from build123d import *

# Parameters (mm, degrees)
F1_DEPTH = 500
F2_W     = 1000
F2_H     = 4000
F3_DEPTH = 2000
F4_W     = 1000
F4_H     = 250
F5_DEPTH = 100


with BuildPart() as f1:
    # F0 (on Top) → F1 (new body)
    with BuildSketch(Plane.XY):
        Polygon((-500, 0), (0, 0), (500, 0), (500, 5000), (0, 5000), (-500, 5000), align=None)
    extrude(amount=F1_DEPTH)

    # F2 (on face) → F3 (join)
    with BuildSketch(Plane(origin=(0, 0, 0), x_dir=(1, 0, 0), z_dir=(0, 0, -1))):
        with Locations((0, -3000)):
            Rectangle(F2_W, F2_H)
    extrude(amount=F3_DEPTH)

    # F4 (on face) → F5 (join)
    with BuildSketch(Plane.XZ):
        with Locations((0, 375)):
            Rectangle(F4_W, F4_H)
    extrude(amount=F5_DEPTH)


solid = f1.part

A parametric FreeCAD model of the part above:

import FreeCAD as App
import Part
import Sketcher
Q = App.Units.Quantity


def add_polygon(sketch, points):
    """Adds a closed chain of lines whose ends are joined by coincident constraints."""
    first, n = sketch.GeometryCount, len(points)
    for a, b in zip(points, points[1:] + points[:1]):
        sketch.addGeometry(Part.LineSegment(App.Vector(*a, 0), App.Vector(*b, 0)), False)
    for i in range(n):
        sketch.addConstraint(Sketcher.Constraint("Coincident", first + i, 2, first + (i + 1) % n, 1))

doc = App.newDocument("Part")
params = doc.addObject("Spreadsheet::Sheet", "Params")
for row, (alias, value) in enumerate([
    ("sketch1_width", "1000 mm"),
    ("sketch1_height", "5000 mm"),
    ("pad1_length", "500 mm"),
    ("sketch2_width", "1000 mm"),
    ("sketch2_height", "4000 mm"),
    ("pad2_length", "2000 mm"),
    ("sketch3_width", "1000 mm"),
    ("sketch3_height", "250 mm"),
    ("pad3_length", "100 mm"),
], start=1):
    params.set(f"A{row}", alias)
    params.set(f"B{row}", "=" + value)
    params.setAlias(f"B{row}", alias)

body = doc.addObject("PartDesign::Body", "Body")

# Sketch on XY plane
sketch1 = body.newObject("Sketcher::SketchObject", "Sketch")
sketch1.AttachmentSupport = (doc.getObject("XY_Plane"), [""])
sketch1.MapMode = "FlatFace"
add_polygon(sketch1, [(-500, 0), (500, 0), (500, 5000), (-500, 5000)])  # lines 0-3
sketch1.addConstraint(Sketcher.Constraint("Horizontal", 0))
sketch1.addConstraint(Sketcher.Constraint("Vertical", 1))
sketch1.addConstraint(Sketcher.Constraint("Horizontal", 2))
sketch1.addConstraint(Sketcher.Constraint("Vertical", 3))
sketch1.addConstraint(Sketcher.Constraint("Symmetric", 0, 2, 3, 2, -1, 1))
sketch1.addConstraint(Sketcher.Constraint("DistanceX", 0, 1, 0, 2, Q("1000 mm")))
sketch1.addConstraint(Sketcher.Constraint("DistanceY", 1, 1, 1, 2, Q("5000 mm")))
sketch1.setExpression("Constraints[9]", "Params.sketch1_width")
sketch1.setExpression("Constraints[10]", "Params.sketch1_height")
pad1 = body.newObject("PartDesign::Pad", "Pad")
pad1.Profile = sketch1
pad1.setExpression("Length", "Params.pad1_length")

# Sketch on XY plane
sketch2 = body.newObject("Sketcher::SketchObject", "Sketch001")
sketch2.AttachmentSupport = (doc.getObject("XY_Plane"), [""])
sketch2.MapMode = "FlatFace"
add_polygon(sketch2, [(-500, 1000), (-500, 5000), (500, 5000), (500, 1000)])  # lines 0-3
sketch2.addConstraint(Sketcher.Constraint("Vertical", 0))
sketch2.addConstraint(Sketcher.Constraint("Horizontal", 1))
sketch2.addConstraint(Sketcher.Constraint("Vertical", 2))
sketch2.addConstraint(Sketcher.Constraint("Horizontal", 3))
sketch2.addConstraint(Sketcher.Constraint("DistanceX", 1, 1, 1, 2, Q("1000 mm")))
sketch2.addConstraint(Sketcher.Constraint("DistanceY", 0, 1, 0, 2, Q("4000 mm")))
sketch2.addConstraint(Sketcher.Constraint("DistanceX", 0, 2, -1, 1, Q("500 mm")))
sketch2.addConstraint(Sketcher.Constraint("DistanceY", -1, 1, 0, 2, Q("5000 mm")))
sketch2.setExpression("Constraints[8]", "Params.sketch2_width")
sketch2.setExpression("Constraints[9]", "Params.sketch2_height")
pad2 = body.newObject("PartDesign::Pad", "Pad001")
pad2.Profile = sketch2
pad2.setExpression("Length", "Params.pad2_length")
pad2.Reversed = True

# Sketch on XZ plane
sketch3 = body.newObject("Sketcher::SketchObject", "Sketch002")
sketch3.AttachmentSupport = (doc.getObject("XZ_Plane"), [""])
sketch3.MapMode = "FlatFace"
add_polygon(sketch3, [(-500, 500), (-500, 250), (500, 250), (500, 500)])  # lines 0-3
sketch3.addConstraint(Sketcher.Constraint("Vertical", 0))
sketch3.addConstraint(Sketcher.Constraint("Horizontal", 1))
sketch3.addConstraint(Sketcher.Constraint("Vertical", 2))
sketch3.addConstraint(Sketcher.Constraint("Horizontal", 3))
sketch3.addConstraint(Sketcher.Constraint("DistanceX", 1, 1, 1, 2, Q("1000 mm")))
sketch3.addConstraint(Sketcher.Constraint("DistanceY", 0, 2, 0, 1, Q("250 mm")))
sketch3.addConstraint(Sketcher.Constraint("DistanceX", 0, 2, -1, 1, Q("500 mm")))
sketch3.addConstraint(Sketcher.Constraint("DistanceY", -1, 1, 0, 2, Q("250 mm")))
sketch3.setExpression("Constraints[8]", "Params.sketch3_width")
sketch3.setExpression("Constraints[9]", "Params.sketch3_height")
pad3 = body.newObject("PartDesign::Pad", "Pad002")
pad3.Profile = sketch3
pad3.setExpression("Length", "Params.pad3_length")

doc.recompute()
